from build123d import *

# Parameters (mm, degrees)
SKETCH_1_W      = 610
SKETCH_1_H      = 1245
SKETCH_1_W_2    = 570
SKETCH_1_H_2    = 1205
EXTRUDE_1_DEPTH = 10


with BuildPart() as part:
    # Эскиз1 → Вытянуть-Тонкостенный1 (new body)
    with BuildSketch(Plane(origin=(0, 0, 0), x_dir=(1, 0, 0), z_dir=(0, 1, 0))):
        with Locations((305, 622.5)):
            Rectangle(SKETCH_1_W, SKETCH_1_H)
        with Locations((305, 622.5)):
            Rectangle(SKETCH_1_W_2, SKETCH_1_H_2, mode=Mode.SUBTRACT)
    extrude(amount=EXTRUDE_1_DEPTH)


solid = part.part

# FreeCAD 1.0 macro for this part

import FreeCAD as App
import Part
import Sketcher

doc = App.newDocument("Part")
body = doc.addObject("PartDesign::Body", "Body")

# Sketch on XZ plane
sketch1 = body.newObject("Sketcher::SketchObject", "Sketch")
sketch1.AttachmentSupport = (doc.getObject("XZ_Plane"), [""])
sketch1.MapMode = "FlatFace"
sketch1.addGeometry([
    Part.LineSegment(App.Vector(0, -1245, 0), App.Vector(0, 0, 0)),  # 0
    Part.LineSegment(App.Vector(0, 0, 0), App.Vector(610, 0, 0)),  # 1
    Part.LineSegment(App.Vector(610, 0, 0), App.Vector(610, -1245, 0)),  # 2
    Part.LineSegment(App.Vector(610, -1245, 0), App.Vector(0, -1245, 0)),  # 3
    Part.LineSegment(App.Vector(590, -20, 0), App.Vector(20, -20, 0)),  # 4
    Part.LineSegment(App.Vector(20, -20, 0), App.Vector(20, -1225, 0)),  # 5
    Part.LineSegment(App.Vector(20, -1225, 0), App.Vector(590, -1225, 0)),  # 6
    Part.LineSegment(App.Vector(590, -1225, 0), App.Vector(590, -20, 0)),  # 7
], False)
sketch1.addConstraint([
    Sketcher.Constraint("Coincident", 0, 2, 1, 1),
    Sketcher.Constraint("Coincident", 1, 2, 2, 1),
    Sketcher.Constraint("Coincident", 2, 2, 3, 1),
    Sketcher.Constraint("Coincident", 3, 2, 0, 1),
    Sketcher.Constraint("Coincident", 4, 2, 5, 1),
    Sketcher.Constraint("Coincident", 5, 2, 6, 1),
    Sketcher.Constraint("Coincident", 6, 2, 7, 1),
    Sketcher.Constraint("Coincident", 7, 2, 4, 1),
    Sketcher.Constraint("Vertical", 0),
    Sketcher.Constraint("Horizontal", 1),
    Sketcher.Constraint("Vertical", 2),
    Sketcher.Constraint("Horizontal", 3),
    Sketcher.Constraint("Horizontal", 4),
    Sketcher.Constraint("Vertical", 5),
    Sketcher.Constraint("Horizontal", 6),
    Sketcher.Constraint("Vertical", 7),
    Sketcher.Constraint("Coincident", 0, 2, -1, 1),
    Sketcher.Constraint("DistanceX", 1, 1, 1, 2, 610.0),
    Sketcher.Constraint("DistanceX", 4, 2, 4, 1, 570.0),
    Sketcher.Constraint("DistanceY", 0, 1, 0, 2, 1245.0),
    Sketcher.Constraint("DistanceY", 5, 2, 5, 1, 1205.0),
    Sketcher.Constraint("DistanceX", -1, 1, 4, 2, 20.0),
    Sketcher.Constraint("DistanceY", 4, 2, -1, 1, 20.0),
])
pad1 = body.newObject("PartDesign::Pad", "Pad")
pad1.Profile = sketch1
pad1.Length = 10
pad1.Reversed = True

doc.recompute()
